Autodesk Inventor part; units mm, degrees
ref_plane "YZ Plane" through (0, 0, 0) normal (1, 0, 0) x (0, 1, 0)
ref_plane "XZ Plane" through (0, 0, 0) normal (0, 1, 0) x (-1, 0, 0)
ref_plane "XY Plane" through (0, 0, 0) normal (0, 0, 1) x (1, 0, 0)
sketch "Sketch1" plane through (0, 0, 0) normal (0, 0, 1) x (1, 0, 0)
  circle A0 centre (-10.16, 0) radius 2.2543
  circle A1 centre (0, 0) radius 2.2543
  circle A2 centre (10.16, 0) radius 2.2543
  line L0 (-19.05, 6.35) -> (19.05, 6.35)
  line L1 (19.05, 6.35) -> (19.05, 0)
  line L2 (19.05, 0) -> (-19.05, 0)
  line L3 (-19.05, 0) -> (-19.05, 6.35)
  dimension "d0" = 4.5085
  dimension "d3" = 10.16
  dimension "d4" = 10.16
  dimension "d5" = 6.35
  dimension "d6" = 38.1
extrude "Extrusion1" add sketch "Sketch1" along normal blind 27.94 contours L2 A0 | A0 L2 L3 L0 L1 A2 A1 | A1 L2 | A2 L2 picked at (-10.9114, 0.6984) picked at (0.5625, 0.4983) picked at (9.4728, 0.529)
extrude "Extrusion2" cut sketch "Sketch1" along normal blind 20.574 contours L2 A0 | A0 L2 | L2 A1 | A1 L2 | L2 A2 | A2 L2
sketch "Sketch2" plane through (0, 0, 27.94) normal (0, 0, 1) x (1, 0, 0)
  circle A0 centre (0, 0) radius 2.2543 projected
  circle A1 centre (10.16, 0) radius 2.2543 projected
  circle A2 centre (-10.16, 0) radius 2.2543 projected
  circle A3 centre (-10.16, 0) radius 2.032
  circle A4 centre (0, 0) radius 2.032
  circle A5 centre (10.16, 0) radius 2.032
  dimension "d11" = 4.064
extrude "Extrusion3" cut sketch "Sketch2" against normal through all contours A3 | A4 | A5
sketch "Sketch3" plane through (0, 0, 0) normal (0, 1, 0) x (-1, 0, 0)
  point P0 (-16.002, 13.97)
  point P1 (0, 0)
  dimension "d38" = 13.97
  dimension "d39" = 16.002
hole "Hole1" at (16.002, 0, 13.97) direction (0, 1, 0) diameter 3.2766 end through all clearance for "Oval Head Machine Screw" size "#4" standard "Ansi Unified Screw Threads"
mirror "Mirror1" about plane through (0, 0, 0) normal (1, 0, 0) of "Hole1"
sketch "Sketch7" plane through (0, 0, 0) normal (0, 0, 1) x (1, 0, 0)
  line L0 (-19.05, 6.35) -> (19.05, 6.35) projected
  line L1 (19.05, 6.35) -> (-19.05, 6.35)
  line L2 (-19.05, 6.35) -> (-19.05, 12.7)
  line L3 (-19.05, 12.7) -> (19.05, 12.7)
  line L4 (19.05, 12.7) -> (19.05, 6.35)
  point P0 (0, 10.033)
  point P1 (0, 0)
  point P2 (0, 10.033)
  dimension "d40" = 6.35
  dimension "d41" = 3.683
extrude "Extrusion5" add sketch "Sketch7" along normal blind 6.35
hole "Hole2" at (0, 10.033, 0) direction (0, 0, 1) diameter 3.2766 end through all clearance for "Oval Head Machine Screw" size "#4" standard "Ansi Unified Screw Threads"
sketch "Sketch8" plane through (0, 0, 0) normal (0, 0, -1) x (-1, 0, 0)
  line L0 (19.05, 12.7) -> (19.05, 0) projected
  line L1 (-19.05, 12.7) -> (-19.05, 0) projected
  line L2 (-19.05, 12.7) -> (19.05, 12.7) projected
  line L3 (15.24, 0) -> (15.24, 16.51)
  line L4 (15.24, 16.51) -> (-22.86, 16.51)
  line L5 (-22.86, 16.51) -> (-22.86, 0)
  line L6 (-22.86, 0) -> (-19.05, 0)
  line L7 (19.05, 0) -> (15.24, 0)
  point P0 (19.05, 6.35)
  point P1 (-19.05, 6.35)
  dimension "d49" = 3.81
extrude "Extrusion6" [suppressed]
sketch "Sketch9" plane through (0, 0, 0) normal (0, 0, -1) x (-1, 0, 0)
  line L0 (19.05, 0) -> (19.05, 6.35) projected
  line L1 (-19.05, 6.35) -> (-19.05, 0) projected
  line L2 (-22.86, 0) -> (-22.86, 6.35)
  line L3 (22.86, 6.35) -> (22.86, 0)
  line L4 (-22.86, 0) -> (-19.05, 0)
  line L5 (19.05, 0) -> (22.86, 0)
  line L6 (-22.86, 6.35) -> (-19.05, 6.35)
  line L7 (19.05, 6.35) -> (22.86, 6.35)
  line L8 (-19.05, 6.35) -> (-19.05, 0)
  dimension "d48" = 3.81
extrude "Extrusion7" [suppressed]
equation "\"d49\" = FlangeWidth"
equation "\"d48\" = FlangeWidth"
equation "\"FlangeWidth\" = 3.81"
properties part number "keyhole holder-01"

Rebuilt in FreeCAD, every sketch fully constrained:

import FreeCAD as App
import Part
import Sketcher
from FreeCAD import Vector
Q = App.Units.Quantity

doc = App.newDocument("Part")
params = doc.addObject("Spreadsheet::Sheet", "Params")
for row, (alias, value) in enumerate([
    ("sketch1_width", "1.5 in"),
    ("sketch1_height", "0.25 in"),
    ("pad1_length", "1.1 in"),
    ("pocket1_length", "0.81 in"),
    ("sketch3_diameter", "0.16 in"),
    ("sketch4_diameter", "0.129 in"),
    ("hole_diameter", "0.129 in"),
    ("sketch5_height", "0.25 in"),
    ("sketch5_width", "1.5 in"),
    ("pad2_length", "0.25 in"),
    ("sketch6_diameter", "0.129 in"),
    ("hole2_diameter", "0.129 in"),
], start=1):
    params.set(f"A{row}", alias)
    params.set(f"B{row}", "=" + value)
    params.setAlias(f"B{row}", alias)

body = doc.addObject("PartDesign::Body", "Body")

sketch1 = doc.addObject("Sketcher::SketchObject", "Sketch")
body.addObject(sketch1)
sketch1.AttachmentSupport = (doc.XY_Plane, [""])
sketch1.MapMode = "FlatFace"
sketch1.addGeometry(Part.LineSegment(Vector(19, 0, 0), Vector(19, 6, 0)), False)
sketch1.addGeometry(Part.LineSegment(Vector(19, 6, 0), Vector(-19, 6, 0)), False)
sketch1.addGeometry(Part.LineSegment(Vector(-19, 6, 0), Vector(-19, 0, 0)), False)
sketch1.addGeometry(Part.LineSegment(Vector(-19, 0, 0), Vector(19, 0, 0)), False)
sketch1.addConstraint(Sketcher.Constraint("Coincident", 0, 2, 1, 1))
sketch1.addConstraint(Sketcher.Constraint("Coincident", 1, 2, 2, 1))
sketch1.addConstraint(Sketcher.Constraint("Coincident", 2, 2, 3, 1))
sketch1.addConstraint(Sketcher.Constraint("Coincident", 3, 2, 0, 1))
sketch1.addConstraint(Sketcher.Constraint("Vertical", 0))
sketch1.addConstraint(Sketcher.Constraint("Horizontal", 1))
sketch1.addConstraint(Sketcher.Constraint("Vertical", 2))
sketch1.addConstraint(Sketcher.Constraint("Horizontal", 3))
sketch1.addConstraint(Sketcher.Constraint("Symmetric", 2, 2, 3, 2, -1, 1))
sketch1.addConstraint(Sketcher.Constraint("DistanceX", 1, 2, 1, 1, Q("1.5 in")))
sketch1.addConstraint(Sketcher.Constraint("DistanceY", 0, 1, 0, 2, Q("0.25 in")))
sketch1.setExpression("Constraints[9]", "Params.sketch1_width")
sketch1.setExpression("Constraints[10]", "Params.sketch1_height")
pad1 = doc.addObject("PartDesign::Pad", "Pad")
body.addObject(pad1)
pad1.Profile = sketch1
pad1.setExpression("Length", "Params.pad1_length")

sketch2 = doc.addObject("Sketcher::SketchObject", "Sketch001")
body.addObject(sketch2)
sketch2.AttachmentSupport = (doc.XY_Plane, [""])
sketch2.MapMode = "FlatFace"
sketch2.addGeometry(Part.Circle(Vector(-10.2, 0, 0), Vector(0, 0, 1), 2.3), False)
sketch2.addGeometry(Part.Circle(Vector(0, 0, 0), Vector(0, 0, 1), 2.3), False)
sketch2.addGeometry(Part.Circle(Vector(10.2, 0, 0), Vector(0, 0, 1), 2.3), False)
sketch2.addConstraint(Sketcher.Constraint("Coincident", 1, 3, -1, 1))
sketch2.addConstraint(Sketcher.Constraint("Equal", 0, 1))
sketch2.addConstraint(Sketcher.Constraint("Equal", 1, 2))
sketch2.addConstraint(Sketcher.Constraint("Symmetric", 0, 3, 2, 3, -1, 1))
sketch2.addConstraint(Sketcher.Constraint("PointOnObject", 0, 3, -1))
sketch2.addConstraint(Sketcher.Constraint("Diameter", 0, Q("0.1775 in")))
sketch2.addConstraint(Sketcher.Constraint("DistanceX", 0, 3, -1, 1, Q("0.4 in")))
pocket1 = doc.addObject("PartDesign::Pocket", "Pocket")
body.addObject(pocket1)
pocket1.Profile = sketch2
pocket1.setExpression("Length", "Params.pocket1_length")
pocket1.Reversed = True

sketch3 = doc.addObject("Sketcher::SketchObject", "Sketch002")
body.addObject(sketch3)
sketch3.AttachmentSupport = (doc.XY_Plane, [""])
sketch3.MapMode = "FlatFace"
sketch3.AttachmentOffset = App.Placement(Vector(0, 0, 1.1 * 25.4), App.Rotation())
sketch3.addGeometry(Part.Circle(Vector(-10.2, 0, 0), Vector(0, 0, 1), 2), False)
sketch3.addGeometry(Part.Circle(Vector(0, 0, 0), Vector(0, 0, 1), 2), False)
sketch3.addGeometry(Part.Circle(Vector(10.2, 0, 0), Vector(0, 0, 1), 2), False)
sketch3.addConstraint(Sketcher.Constraint("Coincident", 1, 3, -1, 1))
sketch3.addConstraint(Sketcher.Constraint("Equal", 0, 1))
sketch3.addConstraint(Sketcher.Constraint("Equal", 1, 2))
sketch3.addConstraint(Sketcher.Constraint("Symmetric", 0, 3, 2, 3, -1, 1))
sketch3.addConstraint(Sketcher.Constraint("PointOnObject", 0, 3, -1))
sketch3.addConstraint(Sketcher.Constraint("Diameter", 0, Q("0.16 in")))
sketch3.addConstraint(Sketcher.Constraint("DistanceX", 0, 3, -1, 1, Q("0.4 in")))
sketch3.setExpression("Constraints[5]", "Params.sketch3_diameter")
pocket2 = doc.addObject("PartDesign::Pocket", "Pocket001")
body.addObject(pocket2)
pocket2.Profile = sketch3
pocket2.Type = "ThroughAll"

sketch4 = doc.addObject("Sketcher::SketchObject", "Sketch003")
body.addObject(sketch4)
sketch4.AttachmentSupport = (doc.XZ_Plane, [""])
sketch4.MapMode = "FlatFace"
sketch4.addGeometry(Part.Circle(Vector(16, 14, 0), Vector(0, 0, 1), 1.6), False)
sketch4.addConstraint(Sketcher.Constraint("Diameter", 0, Q("0.129 in")))
sketch4.addConstraint(Sketcher.Constraint("DistanceX", -1, 1, 0, 3, Q("0.63 in")))
sketch4.addConstraint(Sketcher.Constraint("DistanceY", -1, 1, 0, 3, Q("0.55 in")))
sketch4.setExpression("Constraints[0]", "Params.sketch4_diameter")
doc.recompute()
hole = doc.addObject("PartDesign::Hole", "Hole")
body.addObject(hole)
hole.Profile = sketch4
hole.ThreadType = "None"
hole.setExpression("Diameter", "Params.hole_diameter")
hole.DepthType = "ThroughAll"
doc.recompute()

mirrored = doc.addObject("PartDesign::Mirrored", "Mirrored")
body.addObject(mirrored)
mirrored.Originals = [hole]
mirrored.MirrorPlane = (doc.YZ_Plane, [""])
body.Tip = mirrored

sketch5 = doc.addObject("Sketcher::SketchObject", "Sketch004")
body.addObject(sketch5)
sketch5.AttachmentSupport = (doc.XY_Plane, [""])
sketch5.MapMode = "FlatFace"
sketch5.addGeometry(Part.LineSegment(Vector(-19, 13, 0), Vector(-19, 6, 0)), False)
sketch5.addGeometry(Part.LineSegment(Vector(-19, 6, 0), Vector(19, 6, 0)), False)
sketch5.addGeometry(Part.LineSegment(Vector(19, 6, 0), Vector(19, 13, 0)), False)
sketch5.addGeometry(Part.LineSegment(Vector(19, 13, 0), Vector(-19, 13, 0)), False)
sketch5.addConstraint(Sketcher.Constraint("Coincident", 0, 2, 1, 1))
sketch5.addConstraint(Sketcher.Constraint("Coincident", 1, 2, 2, 1))
sketch5.addConstraint(Sketcher.Constraint("Coincident", 2, 2, 3, 1))
sketch5.addConstraint(Sketcher.Constraint("Coincident", 3, 2, 0, 1))
sketch5.addConstraint(Sketcher.Constraint("Vertical", 0))
sketch5.addConstraint(Sketcher.Constraint("Horizontal", 1))
sketch5.addConstraint(Sketcher.Constraint("Vertical", 2))
sketch5.addConstraint(Sketcher.Constraint("Horizontal", 3))
sketch5.addConstraint(Sketcher.Constraint("DistanceY", 0, 2, 0, 1, Q("0.25 in")))
sketch5.addConstraint(Sketcher.Constraint("DistanceY", -1, 1, 0, 2, Q("0.25 in")))
sketch5.addConstraint(Sketcher.Constraint("DistanceX", 1, 1, 1, 2, Q("1.5 in")))
sketch5.addConstraint(Sketcher.Constraint("DistanceX", 0, 2, -1, 1, Q("0.75 in")))
sketch5.setExpression("Constraints[8]", "Params.sketch5_height")
sketch5.setExpression("Constraints[10]", "Params.sketch5_width")
pad2 = doc.addObject("PartDesign::Pad", "Pad001")
body.addObject(pad2)
pad2.Profile = sketch5
pad2.setExpression("Length", "Params.pad2_length")

sketch6 = doc.addObject("Sketcher::SketchObject", "Sketch005")
body.addObject(sketch6)
sketch6.AttachmentSupport = (doc.XY_Plane, [""])
sketch6.MapMode = "FlatFace"
sketch6.addGeometry(Part.Circle(Vector(0, 10, 0), Vector(0, 0, 1), 1.6), False)
sketch6.addConstraint(Sketcher.Constraint("PointOnObject", 0, 3, -2))
sketch6.addConstraint(Sketcher.Constraint("Diameter", 0, Q("0.129 in")))
sketch6.addConstraint(Sketcher.Constraint("DistanceY", -1, 1, 0, 3, Q("0.395 in")))
sketch6.setExpression("Constraints[1]", "Params.sketch6_diameter")
doc.recompute()
hole2 = doc.addObject("PartDesign::Hole", "Hole001")
body.addObject(hole2)
hole2.Profile = sketch6
hole2.ThreadType = "None"
hole2.setExpression("Diameter", "Params.hole2_diameter")
hole2.DepthType = "ThroughAll"
hole2.Reversed = True

doc.recompute()
